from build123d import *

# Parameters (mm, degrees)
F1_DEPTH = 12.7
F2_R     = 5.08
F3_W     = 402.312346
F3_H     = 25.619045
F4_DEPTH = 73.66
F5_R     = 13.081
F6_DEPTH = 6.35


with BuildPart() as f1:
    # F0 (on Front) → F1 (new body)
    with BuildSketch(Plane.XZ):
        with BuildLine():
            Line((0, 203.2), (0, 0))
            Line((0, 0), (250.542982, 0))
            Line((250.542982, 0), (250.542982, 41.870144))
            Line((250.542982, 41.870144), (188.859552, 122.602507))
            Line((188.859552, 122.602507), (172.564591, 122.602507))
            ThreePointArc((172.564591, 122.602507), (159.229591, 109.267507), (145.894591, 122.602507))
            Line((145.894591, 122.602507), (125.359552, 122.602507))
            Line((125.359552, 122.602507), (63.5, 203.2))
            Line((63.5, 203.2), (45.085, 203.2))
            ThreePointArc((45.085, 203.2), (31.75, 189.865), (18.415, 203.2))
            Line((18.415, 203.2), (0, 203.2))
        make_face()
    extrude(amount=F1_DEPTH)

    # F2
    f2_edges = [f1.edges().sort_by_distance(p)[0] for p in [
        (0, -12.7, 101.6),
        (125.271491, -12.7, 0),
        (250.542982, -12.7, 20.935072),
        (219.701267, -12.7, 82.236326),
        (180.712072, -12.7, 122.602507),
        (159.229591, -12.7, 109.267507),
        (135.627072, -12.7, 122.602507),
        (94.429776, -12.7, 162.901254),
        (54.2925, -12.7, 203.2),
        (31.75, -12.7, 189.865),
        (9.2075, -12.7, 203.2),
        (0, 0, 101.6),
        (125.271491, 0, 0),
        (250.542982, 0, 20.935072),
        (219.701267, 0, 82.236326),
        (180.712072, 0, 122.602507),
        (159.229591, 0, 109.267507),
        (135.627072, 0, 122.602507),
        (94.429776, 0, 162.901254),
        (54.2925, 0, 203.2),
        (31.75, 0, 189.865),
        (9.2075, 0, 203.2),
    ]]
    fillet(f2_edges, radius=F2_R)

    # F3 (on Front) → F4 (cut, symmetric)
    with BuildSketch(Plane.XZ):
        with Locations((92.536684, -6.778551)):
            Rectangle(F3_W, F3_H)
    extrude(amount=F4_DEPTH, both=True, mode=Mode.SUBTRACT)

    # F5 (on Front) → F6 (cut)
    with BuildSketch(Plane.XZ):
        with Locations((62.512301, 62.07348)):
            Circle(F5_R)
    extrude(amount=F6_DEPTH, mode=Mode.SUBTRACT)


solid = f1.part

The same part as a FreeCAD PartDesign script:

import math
import FreeCAD as App
import Part
import Sketcher

V = App.Vector
Q = App.Units.Quantity


def edges_at(feature, points):
    """Names of the edges that pass closest to the given points."""
    edges = feature.Shape.Edges
    near = lambda p: min(range(len(edges)), key=lambda i: edges[i].distToShape(Part.Vertex(*p))[0])
    return sorted({f"Edge{near(p) + 1}" for p in points})


def add_polygon(sketch, points):
    """Adds a closed chain of lines whose ends are joined by coincident constraints."""
    first, n = sketch.GeometryCount, len(points)
    for a, b in zip(points, points[1:] + points[:1]):
        sketch.addGeometry(Part.LineSegment(App.Vector(*a, 0), App.Vector(*b, 0)), False)
    for i in range(n):
        sketch.addConstraint(Sketcher.Constraint("Coincident", first + i, 2, first + (i + 1) % n, 1))

doc = App.newDocument("Part")
body = doc.addObject("PartDesign::Body", "Body")

sketch1 = doc.addObject("Sketcher::SketchObject", "Sketch")
body.addObject(sketch1)
sketch1.AttachmentSupport = (doc.XZ_Plane, [""])
sketch1.MapMode = "FlatFace"
sketch1.addGeometry(Part.LineSegment(V(0, 203, 0), V(0, 0, 0)), False)
sketch1.addGeometry(Part.LineSegment(V(0, 0, 0), V(251, 0, 0)), False)
sketch1.addGeometry(Part.LineSegment(V(251, 0, 0), V(251, 42, 0)), False)
sketch1.addGeometry(Part.LineSegment(V(251, 42, 0), V(189, 123, 0)), False)
sketch1.addGeometry(Part.LineSegment(V(189, 123, 0), V(173, 123, 0)), False)
sketch1.addGeometry(Part.ArcOfCircle(Part.Circle(V(159, 123, 0), V(0, 0, 1), 13), math.radians(180), math.radians(360)), False)
sketch1.addGeometry(Part.LineSegment(V(146, 123, 0), V(125, 123, 0)), False)
sketch1.addGeometry(Part.LineSegment(V(125, 123, 0), V(64, 203, 0)), False)
sketch1.addGeometry(Part.LineSegment(V(64, 203, 0), V(45, 203, 0)), False)
sketch1.addGeometry(Part.ArcOfCircle(Part.Circle(V(32, 203, 0), V(0, 0, 1), 13), math.radians(180), math.radians(360)), False)
sketch1.addGeometry(Part.LineSegment(V(18, 203, 0), V(0, 203, 0)), False)
sketch1.addConstraint(Sketcher.Constraint("Coincident", 0, 2, 1, 1))
sketch1.addConstraint(Sketcher.Constraint("Coincident", 1, 2, 2, 1))
sketch1.addConstraint(Sketcher.Constraint("Coincident", 2, 2, 3, 1))
sketch1.addConstraint(Sketcher.Constraint("Coincident", 3, 2, 4, 1))
sketch1.addConstraint(Sketcher.Constraint("Coincident", 4, 2, 5, 2))
sketch1.addConstraint(Sketcher.Constraint("Coincident", 5, 1, 6, 1))
sketch1.addConstraint(Sketcher.Constraint("Coincident", 6, 2, 7, 1))
sketch1.addConstraint(Sketcher.Constraint("Coincident", 7, 2, 8, 1))
sketch1.addConstraint(Sketcher.Constraint("Coincident", 8, 2, 9, 2))
sketch1.addConstraint(Sketcher.Constraint("Coincident", 9, 1, 10, 1))
sketch1.addConstraint(Sketcher.Constraint("Coincident", 10, 2, 0, 1))
sketch1.addConstraint(Sketcher.Constraint("Vertical", 0))
sketch1.addConstraint(Sketcher.Constraint("Horizontal", 1))
sketch1.addConstraint(Sketcher.Constraint("Vertical", 2))
sketch1.addConstraint(Sketcher.Constraint("Horizontal", 4))
sketch1.addConstraint(Sketcher.Constraint("Horizontal", 6))
sketch1.addConstraint(Sketcher.Constraint("Horizontal", 8))
sketch1.addConstraint(Sketcher.Constraint("Horizontal", 10))
sketch1.addConstraint(Sketcher.Constraint("Coincident", 0, 2, -1, 1))
sketch1.addConstraint(Sketcher.Constraint("Equal", 5, 9))
sketch1.addConstraint(Sketcher.Constraint("Horizontal", 5, 3, 3, 2))
sketch1.addConstraint(Sketcher.Constraint("Horizontal", 4, 2, 5, 1))
sketch1.addConstraint(Sketcher.Constraint("Horizontal", 9, 3, 7, 2))
sketch1.addConstraint(Sketcher.Constraint("Horizontal", 8, 2, 9, 1))
sketch1.addConstraint(Sketcher.Constraint("Equal", 8, 10))
sketch1.addConstraint(Sketcher.Constraint("Equal", 3, 7))
sketch1.addConstraint(Sketcher.Constraint("DistanceY", 0, 2, 0, 1, Q("8 in")))
sketch1.addConstraint(Sketcher.Constraint("Distance", 3, Q("4 in")))
sketch1.addConstraint(Sketcher.Constraint("Radius", 5, Q("0.525 in")))
sketch1.addConstraint(Sketcher.Constraint("DistanceX", -1, 1, 7, 2, Q("2.5 in")))
sketch1.addConstraint(Sketcher.Constraint("DistanceX", 6, 2, 3, 2, Q("2.5 in")))
sketch1.addConstraint(Sketcher.Constraint("DistanceX", 1, 1, 1, 2, 250.542982))
sketch1.addConstraint(Sketcher.Constraint("DistanceX", 4, 2, 4, 1, 16.294961))
sketch1.addConstraint(Sketcher.Constraint("DistanceX", -1, 1, 5, 3, 159.229591))
pad1 = doc.addObject("PartDesign::Pad", "Pad")
body.addObject(pad1)
pad1.Profile = sketch1
pad1.Length = Q("0.5 in")
doc.recompute()

fillet = doc.addObject("PartDesign::Fillet", "Fillet")
body.addObject(fillet)
fillet.Base = (pad1, edges_at(pad1, [
    (0, -12.7, 101.6),
    (125.271, -12.7, 0),
    (250.543, -12.7, 20.935),
    (219.701, -12.7, 82.236),
    (180.712, -12.7, 122.603),
    (159.23, -12.7, 109.268),
    (135.627, -12.7, 122.603),
    (94.43, -12.7, 162.901),
    (54.292, -12.7, 203.2),
    (31.75, -12.7, 189.865),
    (9.207, -12.7, 203.2),
    (0, 0, 101.6),
    (125.271, 0, 0),
    (250.543, 0, 20.935),
    (219.701, 0, 82.236),
    (180.712, 0, 122.603),
    (159.23, 0, 109.268),
    (135.627, 0, 122.603),
    (94.43, 0, 162.901),
    (54.292, 0, 203.2),
    (31.75, 0, 189.865),
    (9.207, 0, 203.2),
]))
fillet.Radius = Q("0.2 in")

sketch2 = doc.addObject("Sketcher::SketchObject", "Sketch001")
body.addObject(sketch2)
sketch2.AttachmentSupport = (doc.XZ_Plane, [""])
sketch2.MapMode = "FlatFace"
add_polygon(sketch2, [(-109, 6), (-109, -20), (294, -20), (294, 6)])
sketch2.addConstraint(Sketcher.Constraint("Vertical", 0))
sketch2.addConstraint(Sketcher.Constraint("Horizontal", 1))
sketch2.addConstraint(Sketcher.Constraint("Vertical", 2))
sketch2.addConstraint(Sketcher.Constraint("Horizontal", 3))
sketch2.addConstraint(Sketcher.Constraint("DistanceX", 1, 1, 1, 2, 402.312346))
sketch2.addConstraint(Sketcher.Constraint("DistanceY", 0, 2, 0, 1, 25.619045))
sketch2.addConstraint(Sketcher.Constraint("DistanceX", 0, 2, -1, 1, 108.619489))
sketch2.addConstraint(Sketcher.Constraint("DistanceY", -1, 1, 2, 2, 6.030971))
pocket1 = doc.addObject("PartDesign::Pocket", "Pocket")
body.addObject(pocket1)
pocket1.Profile = sketch2
pocket1.Length = Q("5.8 in")
pocket1.Midplane = True

sketch3 = doc.addObject("Sketcher::SketchObject", "Sketch002")
body.addObject(sketch3)
sketch3.AttachmentSupport = (doc.XZ_Plane, [""])
sketch3.MapMode = "FlatFace"
sketch3.addGeometry(Part.Circle(V(63, 62, 0), V(0, 0, 1), 13), False)
sketch3.addConstraint(Sketcher.Constraint("Diameter", 0, Q("1.03 in")))
sketch3.addConstraint(Sketcher.Constraint("DistanceX", -1, 1, 0, 3, 62.512301))
sketch3.addConstraint(Sketcher.Constraint("DistanceY", -1, 1, 0, 3, 62.07348))
pocket2 = doc.addObject("PartDesign::Pocket", "Pocket001")
body.addObject(pocket2)
pocket2.Profile = sketch3
pocket2.Length = Q("0.25 in")
pocket2.Reversed = True

doc.recompute()
